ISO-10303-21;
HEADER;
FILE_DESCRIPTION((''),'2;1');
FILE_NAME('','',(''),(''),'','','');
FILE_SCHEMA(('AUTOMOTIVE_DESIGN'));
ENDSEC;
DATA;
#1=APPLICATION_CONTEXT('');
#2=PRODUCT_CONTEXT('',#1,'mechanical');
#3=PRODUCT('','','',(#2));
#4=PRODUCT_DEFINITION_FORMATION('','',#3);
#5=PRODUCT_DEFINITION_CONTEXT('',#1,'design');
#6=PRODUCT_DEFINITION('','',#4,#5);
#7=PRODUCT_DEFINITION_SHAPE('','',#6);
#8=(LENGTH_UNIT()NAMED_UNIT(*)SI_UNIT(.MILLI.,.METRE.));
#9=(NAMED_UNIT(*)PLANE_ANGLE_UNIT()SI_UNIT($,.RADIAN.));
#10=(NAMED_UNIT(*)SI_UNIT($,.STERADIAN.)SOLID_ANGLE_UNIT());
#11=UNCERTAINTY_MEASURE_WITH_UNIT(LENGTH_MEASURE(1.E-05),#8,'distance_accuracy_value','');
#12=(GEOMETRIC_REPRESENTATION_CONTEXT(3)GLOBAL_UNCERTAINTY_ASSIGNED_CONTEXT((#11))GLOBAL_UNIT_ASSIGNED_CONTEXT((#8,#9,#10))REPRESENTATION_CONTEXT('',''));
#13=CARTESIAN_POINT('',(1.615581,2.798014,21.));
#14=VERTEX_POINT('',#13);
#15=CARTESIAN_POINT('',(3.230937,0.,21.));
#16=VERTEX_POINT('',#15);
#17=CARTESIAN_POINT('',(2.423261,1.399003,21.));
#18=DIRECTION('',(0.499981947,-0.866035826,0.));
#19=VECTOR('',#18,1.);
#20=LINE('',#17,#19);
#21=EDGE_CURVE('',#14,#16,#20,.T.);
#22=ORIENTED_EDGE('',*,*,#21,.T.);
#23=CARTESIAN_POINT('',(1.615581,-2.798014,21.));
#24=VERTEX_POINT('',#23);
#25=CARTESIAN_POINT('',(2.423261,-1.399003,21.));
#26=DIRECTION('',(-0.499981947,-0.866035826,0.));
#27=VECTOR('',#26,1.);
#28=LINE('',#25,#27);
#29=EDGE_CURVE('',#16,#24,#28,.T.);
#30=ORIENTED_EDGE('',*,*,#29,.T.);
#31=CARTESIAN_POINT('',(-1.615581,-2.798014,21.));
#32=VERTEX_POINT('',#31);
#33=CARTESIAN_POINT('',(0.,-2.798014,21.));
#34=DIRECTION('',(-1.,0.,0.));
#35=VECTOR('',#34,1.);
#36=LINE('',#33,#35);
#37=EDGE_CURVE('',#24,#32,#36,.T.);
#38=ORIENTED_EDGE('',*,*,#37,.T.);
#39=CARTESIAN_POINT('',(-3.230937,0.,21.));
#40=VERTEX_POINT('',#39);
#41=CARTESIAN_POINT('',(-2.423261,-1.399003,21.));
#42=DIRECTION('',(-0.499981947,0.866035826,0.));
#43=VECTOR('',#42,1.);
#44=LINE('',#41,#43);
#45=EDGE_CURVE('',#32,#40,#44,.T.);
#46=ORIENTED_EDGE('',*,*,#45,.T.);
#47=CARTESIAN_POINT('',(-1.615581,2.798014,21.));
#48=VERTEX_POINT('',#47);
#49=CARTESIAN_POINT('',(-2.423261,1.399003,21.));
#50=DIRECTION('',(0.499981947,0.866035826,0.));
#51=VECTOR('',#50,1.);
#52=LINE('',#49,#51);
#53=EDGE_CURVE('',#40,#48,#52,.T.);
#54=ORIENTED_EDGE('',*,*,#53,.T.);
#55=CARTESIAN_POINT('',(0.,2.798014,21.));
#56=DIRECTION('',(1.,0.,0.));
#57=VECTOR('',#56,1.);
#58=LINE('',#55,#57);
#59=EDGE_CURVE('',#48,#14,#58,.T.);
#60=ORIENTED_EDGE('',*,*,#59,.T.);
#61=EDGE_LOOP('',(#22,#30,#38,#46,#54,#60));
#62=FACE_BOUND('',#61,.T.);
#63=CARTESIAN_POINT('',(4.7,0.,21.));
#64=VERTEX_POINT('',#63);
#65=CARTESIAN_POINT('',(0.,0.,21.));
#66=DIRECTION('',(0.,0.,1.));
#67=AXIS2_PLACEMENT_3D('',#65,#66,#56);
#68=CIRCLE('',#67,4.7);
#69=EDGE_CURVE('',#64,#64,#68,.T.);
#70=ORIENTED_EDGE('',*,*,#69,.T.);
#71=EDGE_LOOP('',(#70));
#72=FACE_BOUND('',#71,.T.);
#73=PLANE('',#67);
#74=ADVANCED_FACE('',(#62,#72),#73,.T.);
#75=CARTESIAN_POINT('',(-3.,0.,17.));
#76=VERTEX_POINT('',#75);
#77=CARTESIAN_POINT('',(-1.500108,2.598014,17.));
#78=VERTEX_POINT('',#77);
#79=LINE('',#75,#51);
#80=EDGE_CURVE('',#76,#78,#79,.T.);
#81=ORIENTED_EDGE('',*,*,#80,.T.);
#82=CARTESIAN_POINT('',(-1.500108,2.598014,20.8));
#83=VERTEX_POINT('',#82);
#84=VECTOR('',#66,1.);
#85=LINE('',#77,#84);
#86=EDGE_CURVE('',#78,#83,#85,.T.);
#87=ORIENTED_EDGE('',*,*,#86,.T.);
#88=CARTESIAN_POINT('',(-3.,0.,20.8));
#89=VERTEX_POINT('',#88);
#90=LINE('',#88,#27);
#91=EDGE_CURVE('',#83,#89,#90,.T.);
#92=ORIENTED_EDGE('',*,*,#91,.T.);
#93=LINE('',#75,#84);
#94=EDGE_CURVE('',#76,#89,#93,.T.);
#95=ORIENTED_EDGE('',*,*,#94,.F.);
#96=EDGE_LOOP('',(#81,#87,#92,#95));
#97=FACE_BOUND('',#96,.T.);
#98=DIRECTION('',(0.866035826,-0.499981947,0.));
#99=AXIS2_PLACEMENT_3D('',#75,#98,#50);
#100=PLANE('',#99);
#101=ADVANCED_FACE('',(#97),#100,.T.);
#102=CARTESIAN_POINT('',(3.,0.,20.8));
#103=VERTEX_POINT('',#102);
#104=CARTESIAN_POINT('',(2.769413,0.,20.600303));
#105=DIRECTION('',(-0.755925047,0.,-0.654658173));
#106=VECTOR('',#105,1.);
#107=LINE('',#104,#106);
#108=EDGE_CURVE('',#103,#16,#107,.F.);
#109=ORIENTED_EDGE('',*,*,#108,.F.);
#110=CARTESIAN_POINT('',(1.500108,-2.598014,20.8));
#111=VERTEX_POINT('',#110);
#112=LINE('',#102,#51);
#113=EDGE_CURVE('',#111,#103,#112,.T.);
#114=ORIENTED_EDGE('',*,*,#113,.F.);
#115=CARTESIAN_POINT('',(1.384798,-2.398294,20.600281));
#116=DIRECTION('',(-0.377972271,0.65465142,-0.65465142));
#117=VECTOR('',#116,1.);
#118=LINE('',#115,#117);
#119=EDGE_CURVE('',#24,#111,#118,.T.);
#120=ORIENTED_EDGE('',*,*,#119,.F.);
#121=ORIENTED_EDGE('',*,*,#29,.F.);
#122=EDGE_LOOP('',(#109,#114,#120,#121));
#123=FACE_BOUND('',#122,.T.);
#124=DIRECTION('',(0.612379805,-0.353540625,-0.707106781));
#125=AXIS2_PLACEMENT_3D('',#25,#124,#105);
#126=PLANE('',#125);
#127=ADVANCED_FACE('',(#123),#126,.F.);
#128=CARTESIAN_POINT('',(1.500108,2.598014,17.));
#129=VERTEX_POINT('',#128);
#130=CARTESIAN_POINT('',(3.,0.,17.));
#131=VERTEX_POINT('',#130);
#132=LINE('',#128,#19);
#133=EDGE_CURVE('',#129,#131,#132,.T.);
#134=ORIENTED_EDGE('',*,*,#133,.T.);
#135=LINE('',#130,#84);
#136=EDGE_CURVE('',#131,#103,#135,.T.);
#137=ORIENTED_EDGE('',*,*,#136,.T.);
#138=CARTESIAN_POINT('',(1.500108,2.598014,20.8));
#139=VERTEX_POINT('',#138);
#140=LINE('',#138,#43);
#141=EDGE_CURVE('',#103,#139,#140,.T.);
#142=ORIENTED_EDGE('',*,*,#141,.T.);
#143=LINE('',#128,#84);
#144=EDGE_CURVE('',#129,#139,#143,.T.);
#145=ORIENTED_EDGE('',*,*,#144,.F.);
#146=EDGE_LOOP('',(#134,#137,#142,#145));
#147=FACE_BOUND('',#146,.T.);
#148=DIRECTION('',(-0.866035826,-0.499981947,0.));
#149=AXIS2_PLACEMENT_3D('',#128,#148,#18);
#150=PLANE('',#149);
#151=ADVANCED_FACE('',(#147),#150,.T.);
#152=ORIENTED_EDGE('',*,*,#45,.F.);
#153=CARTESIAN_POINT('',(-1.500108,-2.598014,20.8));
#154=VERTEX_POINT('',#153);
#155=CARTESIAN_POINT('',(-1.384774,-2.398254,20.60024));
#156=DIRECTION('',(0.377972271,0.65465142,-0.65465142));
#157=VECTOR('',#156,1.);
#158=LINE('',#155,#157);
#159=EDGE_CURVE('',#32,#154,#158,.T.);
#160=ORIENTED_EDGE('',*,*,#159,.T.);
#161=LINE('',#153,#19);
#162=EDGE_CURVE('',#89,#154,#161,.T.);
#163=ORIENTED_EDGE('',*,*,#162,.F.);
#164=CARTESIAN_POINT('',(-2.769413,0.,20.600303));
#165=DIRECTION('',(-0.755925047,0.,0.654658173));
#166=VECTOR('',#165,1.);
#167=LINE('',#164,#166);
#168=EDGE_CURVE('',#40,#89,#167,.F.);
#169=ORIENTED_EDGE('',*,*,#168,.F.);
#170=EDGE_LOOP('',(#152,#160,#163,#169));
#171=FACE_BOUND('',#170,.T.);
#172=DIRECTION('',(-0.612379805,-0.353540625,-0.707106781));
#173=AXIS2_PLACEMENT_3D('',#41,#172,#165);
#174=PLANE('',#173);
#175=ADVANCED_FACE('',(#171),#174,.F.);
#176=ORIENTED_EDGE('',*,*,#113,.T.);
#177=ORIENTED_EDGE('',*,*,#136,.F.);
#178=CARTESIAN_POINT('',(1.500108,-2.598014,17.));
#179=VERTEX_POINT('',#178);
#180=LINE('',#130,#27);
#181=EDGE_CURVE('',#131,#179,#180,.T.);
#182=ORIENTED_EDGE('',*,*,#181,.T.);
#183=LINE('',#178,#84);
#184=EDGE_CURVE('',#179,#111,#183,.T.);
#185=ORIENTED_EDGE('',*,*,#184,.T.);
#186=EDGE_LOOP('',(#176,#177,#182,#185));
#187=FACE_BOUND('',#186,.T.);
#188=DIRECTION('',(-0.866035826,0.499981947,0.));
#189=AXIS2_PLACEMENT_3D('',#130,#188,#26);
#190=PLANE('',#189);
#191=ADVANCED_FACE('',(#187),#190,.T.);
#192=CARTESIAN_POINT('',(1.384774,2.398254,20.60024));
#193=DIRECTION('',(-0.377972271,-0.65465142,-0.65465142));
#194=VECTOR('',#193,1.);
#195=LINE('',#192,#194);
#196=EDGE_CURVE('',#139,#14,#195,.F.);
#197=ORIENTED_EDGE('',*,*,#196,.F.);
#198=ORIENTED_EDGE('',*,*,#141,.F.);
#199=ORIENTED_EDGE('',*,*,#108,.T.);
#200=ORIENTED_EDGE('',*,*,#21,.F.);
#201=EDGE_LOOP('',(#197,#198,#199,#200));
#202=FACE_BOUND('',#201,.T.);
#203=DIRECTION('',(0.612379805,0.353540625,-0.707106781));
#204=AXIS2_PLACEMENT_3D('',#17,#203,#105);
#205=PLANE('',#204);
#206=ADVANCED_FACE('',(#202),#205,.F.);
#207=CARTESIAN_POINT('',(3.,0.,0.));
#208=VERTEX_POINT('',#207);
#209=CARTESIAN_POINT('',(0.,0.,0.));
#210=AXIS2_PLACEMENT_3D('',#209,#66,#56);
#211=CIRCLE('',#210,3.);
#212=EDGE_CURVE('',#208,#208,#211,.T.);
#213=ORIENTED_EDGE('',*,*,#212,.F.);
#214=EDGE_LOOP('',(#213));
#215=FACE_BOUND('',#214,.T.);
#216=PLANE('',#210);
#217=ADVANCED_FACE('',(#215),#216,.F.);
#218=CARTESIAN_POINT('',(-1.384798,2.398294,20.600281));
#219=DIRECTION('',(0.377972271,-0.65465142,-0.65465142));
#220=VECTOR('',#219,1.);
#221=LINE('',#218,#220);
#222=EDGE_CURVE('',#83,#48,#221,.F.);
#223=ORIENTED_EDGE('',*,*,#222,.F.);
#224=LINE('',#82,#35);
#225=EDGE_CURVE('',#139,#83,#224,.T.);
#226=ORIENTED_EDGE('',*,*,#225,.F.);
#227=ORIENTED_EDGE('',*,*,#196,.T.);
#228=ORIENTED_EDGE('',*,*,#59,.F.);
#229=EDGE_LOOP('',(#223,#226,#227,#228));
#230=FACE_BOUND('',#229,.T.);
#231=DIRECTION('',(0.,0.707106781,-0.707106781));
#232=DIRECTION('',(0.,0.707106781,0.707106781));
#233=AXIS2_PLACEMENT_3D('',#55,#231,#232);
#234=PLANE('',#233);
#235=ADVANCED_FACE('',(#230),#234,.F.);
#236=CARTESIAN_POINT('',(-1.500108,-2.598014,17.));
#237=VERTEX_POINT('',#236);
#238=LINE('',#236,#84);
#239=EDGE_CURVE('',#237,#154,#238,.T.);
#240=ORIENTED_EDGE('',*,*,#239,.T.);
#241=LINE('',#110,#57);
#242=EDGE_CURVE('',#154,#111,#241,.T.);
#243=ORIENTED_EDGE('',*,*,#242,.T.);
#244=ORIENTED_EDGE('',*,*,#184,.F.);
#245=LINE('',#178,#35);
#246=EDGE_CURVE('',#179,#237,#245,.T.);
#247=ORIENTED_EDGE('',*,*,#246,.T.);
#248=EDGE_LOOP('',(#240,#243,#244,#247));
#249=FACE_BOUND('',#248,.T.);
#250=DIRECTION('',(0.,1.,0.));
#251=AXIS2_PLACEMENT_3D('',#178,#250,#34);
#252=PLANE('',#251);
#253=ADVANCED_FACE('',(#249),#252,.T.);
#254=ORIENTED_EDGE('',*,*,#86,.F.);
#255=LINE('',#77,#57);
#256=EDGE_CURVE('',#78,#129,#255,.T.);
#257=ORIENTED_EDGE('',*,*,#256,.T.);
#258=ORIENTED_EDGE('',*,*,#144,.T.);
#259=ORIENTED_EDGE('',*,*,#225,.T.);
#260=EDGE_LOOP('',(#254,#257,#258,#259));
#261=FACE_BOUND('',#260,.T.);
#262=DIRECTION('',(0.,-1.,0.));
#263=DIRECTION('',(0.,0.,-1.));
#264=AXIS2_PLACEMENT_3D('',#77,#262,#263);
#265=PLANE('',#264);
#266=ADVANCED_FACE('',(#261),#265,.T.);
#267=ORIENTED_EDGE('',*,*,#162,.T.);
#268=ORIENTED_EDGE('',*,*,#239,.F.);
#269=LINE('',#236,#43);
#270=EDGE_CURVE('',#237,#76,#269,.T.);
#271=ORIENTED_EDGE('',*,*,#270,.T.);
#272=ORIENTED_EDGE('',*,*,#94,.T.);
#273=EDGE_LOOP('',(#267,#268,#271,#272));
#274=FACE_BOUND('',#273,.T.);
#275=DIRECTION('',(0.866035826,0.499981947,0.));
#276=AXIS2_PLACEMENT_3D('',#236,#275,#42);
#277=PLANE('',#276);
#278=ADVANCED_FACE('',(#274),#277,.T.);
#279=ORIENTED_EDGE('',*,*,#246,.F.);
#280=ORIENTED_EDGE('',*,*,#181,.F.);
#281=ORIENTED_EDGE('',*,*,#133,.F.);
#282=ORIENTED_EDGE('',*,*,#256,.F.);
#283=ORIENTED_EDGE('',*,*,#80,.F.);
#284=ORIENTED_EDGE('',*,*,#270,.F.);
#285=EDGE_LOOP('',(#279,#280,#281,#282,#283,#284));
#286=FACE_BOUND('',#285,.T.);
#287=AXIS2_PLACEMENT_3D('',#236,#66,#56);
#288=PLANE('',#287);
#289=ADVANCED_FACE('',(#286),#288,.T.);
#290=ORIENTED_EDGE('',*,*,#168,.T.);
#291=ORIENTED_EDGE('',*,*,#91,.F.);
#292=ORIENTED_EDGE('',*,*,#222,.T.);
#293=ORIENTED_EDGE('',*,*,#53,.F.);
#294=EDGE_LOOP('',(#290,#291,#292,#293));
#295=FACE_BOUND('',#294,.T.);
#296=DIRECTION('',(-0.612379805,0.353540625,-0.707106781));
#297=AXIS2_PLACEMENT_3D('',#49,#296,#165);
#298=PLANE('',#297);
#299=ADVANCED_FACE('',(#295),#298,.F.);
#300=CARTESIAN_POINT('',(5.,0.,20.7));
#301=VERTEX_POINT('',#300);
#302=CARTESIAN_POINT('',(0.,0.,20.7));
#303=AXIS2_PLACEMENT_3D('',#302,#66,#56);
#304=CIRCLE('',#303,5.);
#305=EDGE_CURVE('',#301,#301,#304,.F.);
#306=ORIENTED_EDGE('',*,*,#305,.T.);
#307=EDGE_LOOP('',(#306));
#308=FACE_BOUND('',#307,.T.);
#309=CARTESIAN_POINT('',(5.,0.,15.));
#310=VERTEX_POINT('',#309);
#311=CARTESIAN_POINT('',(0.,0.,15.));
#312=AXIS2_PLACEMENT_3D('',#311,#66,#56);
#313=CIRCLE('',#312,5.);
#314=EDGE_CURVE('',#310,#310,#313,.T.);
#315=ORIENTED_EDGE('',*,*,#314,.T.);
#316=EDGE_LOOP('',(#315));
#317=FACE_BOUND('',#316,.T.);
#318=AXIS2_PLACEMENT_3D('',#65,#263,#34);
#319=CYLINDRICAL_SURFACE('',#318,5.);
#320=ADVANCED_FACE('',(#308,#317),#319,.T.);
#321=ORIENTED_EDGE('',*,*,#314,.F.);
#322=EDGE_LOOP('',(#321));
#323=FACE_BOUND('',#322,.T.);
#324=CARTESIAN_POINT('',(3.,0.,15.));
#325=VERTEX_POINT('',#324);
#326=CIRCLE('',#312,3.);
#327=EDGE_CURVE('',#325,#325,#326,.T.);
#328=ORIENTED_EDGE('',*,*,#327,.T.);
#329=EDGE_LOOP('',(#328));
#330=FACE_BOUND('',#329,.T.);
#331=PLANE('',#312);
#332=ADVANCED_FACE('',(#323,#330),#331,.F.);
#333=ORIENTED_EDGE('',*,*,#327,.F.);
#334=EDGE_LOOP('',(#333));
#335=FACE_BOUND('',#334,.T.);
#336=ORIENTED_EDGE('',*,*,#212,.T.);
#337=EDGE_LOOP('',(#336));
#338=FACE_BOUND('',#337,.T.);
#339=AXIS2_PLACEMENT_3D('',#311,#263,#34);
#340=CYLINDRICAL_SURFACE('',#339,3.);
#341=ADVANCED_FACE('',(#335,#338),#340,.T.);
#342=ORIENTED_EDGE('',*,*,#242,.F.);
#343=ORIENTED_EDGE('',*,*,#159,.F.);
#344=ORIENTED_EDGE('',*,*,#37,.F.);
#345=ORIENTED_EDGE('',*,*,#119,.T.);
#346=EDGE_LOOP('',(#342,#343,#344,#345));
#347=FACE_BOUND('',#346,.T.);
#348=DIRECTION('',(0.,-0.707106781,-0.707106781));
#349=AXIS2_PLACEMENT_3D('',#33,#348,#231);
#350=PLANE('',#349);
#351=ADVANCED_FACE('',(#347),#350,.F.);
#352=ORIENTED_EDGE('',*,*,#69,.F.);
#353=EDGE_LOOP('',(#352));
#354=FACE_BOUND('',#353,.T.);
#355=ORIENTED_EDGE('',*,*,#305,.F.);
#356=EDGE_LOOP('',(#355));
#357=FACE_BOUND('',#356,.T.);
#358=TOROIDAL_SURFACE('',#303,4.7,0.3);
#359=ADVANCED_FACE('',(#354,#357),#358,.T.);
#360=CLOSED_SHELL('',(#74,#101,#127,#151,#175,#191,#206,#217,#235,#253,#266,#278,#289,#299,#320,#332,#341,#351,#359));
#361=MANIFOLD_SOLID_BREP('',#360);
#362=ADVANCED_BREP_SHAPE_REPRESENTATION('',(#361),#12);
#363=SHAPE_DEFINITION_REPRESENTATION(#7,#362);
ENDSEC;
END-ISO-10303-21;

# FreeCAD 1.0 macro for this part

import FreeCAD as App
import Part
import Sketcher

V = App.Vector
Q = App.Units.Quantity


def edges_at(feature, points):
    """Names of the edges that pass closest to the given points."""
    edges = feature.Shape.Edges
    near = lambda p: min(range(len(edges)), key=lambda i: edges[i].distToShape(Part.Vertex(*p))[0])
    return sorted({f"Edge{near(p) + 1}" for p in points})


def add_polygon(sketch, points):
    """Adds a closed chain of lines whose ends are joined by coincident constraints."""
    first, n = sketch.GeometryCount, len(points)
    for a, b in zip(points, points[1:] + points[:1]):
        sketch.addGeometry(Part.LineSegment(App.Vector(*a, 0), App.Vector(*b, 0)), False)
    for i in range(n):
        sketch.addConstraint(Sketcher.Constraint("Coincident", first + i, 2, first + (i + 1) % n, 1))

doc = App.newDocument("Part")
params = doc.addObject("Spreadsheet::Sheet", "Params")
for row, (alias, value) in enumerate([
    ("sketch1_diameter", "6 mm"),
    ("pad1_length", "15 mm"),
    ("sketch2_diameter", "10 mm"),
    ("pad2_length", "6 mm"),
    ("pocket1_length", "4 mm"),
    ("chamfer_size", "0.2 mm"),
    ("fillet_radius", "0.3 mm"),
], start=1):
    params.set(f"A{row}", alias)
    params.set(f"B{row}", "=" + value)
    params.setAlias(f"B{row}", alias)

body = doc.addObject("PartDesign::Body", "Body")

# Sketch on XY plane
sketch1 = body.newObject("Sketcher::SketchObject", "Sketch")
sketch1.AttachmentSupport = (doc.getObject("XY_Plane"), [""])
sketch1.MapMode = "FlatFace"
sketch1.addGeometry(Part.Circle(V(0, 0, 0), V(0, 0, 1), 3), False)
sketch1.addConstraint(Sketcher.Constraint("Coincident", 0, 3, -1, 1))
sketch1.addConstraint(Sketcher.Constraint("Diameter", 0, Q("6 mm")))
sketch1.setExpression("Constraints[1]", "Params.sketch1_diameter")
pad1 = body.newObject("PartDesign::Pad", "Pad")
pad1.Profile = sketch1
pad1.setExpression("Length", "Params.pad1_length")

# Sketch on XY plane
sketch2 = body.newObject("Sketcher::SketchObject", "Sketch001")
sketch2.AttachmentSupport = (doc.getObject("XY_Plane"), [""])
sketch2.MapMode = "FlatFace"
sketch2.AttachmentOffset = App.Placement(V(0, 0, 15), App.Rotation())
sketch2.addGeometry(Part.Circle(V(0, 0, 0), V(0, 0, 1), 5), False)
sketch2.addConstraint(Sketcher.Constraint("Coincident", 0, 3, -1, 1))
sketch2.addConstraint(Sketcher.Constraint("Diameter", 0, Q("10 mm")))
sketch2.setExpression("Constraints[1]", "Params.sketch2_diameter")
pad2 = body.newObject("PartDesign::Pad", "Pad001")
pad2.Profile = sketch2
pad2.setExpression("Length", "Params.pad2_length")

# Sketch on XY plane
sketch3 = body.newObject("Sketcher::SketchObject", "Sketch002")
sketch3.AttachmentSupport = (doc.getObject("XY_Plane"), [""])
sketch3.MapMode = "FlatFace"
sketch3.AttachmentOffset = App.Placement(V(0, 0, 21), App.Rotation())
add_polygon(sketch3, [(-1.5, 2.6), (-3, 0), (-1.5, -2.6), (1.5, -2.6), (3, 0), (1.5, 2.6)])  # lines 0-5
sketch3.addConstraint(Sketcher.Constraint("Horizontal", 2))
sketch3.addConstraint(Sketcher.Constraint("Horizontal", 5))
sketch3.addConstraint(Sketcher.Constraint("Symmetric", 0, 2, 3, 2, -1, 1))
sketch3.addConstraint(Sketcher.Constraint("Symmetric", 1, 2, 4, 2, -1, 1))
sketch3.addConstraint(Sketcher.Constraint("PointOnObject", 0, 2, -1))
sketch3.addConstraint(Sketcher.Constraint("Parallel", 0, 3))
sketch3.addConstraint(Sketcher.Constraint("Vertical", 2, 2, 4, 2))
sketch3.addConstraint(Sketcher.Constraint("DistanceX", 0, 2, -1, 1, Q("3 mm")))
sketch3.addConstraint(Sketcher.Constraint("Distance", 0, Q("2.999892 mm")))
sketch3.addConstraint(Sketcher.Constraint("DistanceX", 2, 1, 2, 2, Q("3.000217 mm")))
pocket1 = body.newObject("PartDesign::Pocket", "Pocket")
pocket1.Profile = sketch3
pocket1.setExpression("Length", "Params.pocket1_length")
doc.recompute()

chamfer = body.newObject("PartDesign::Chamfer", "Chamfer")
chamfer.Base = (pocket1, edges_at(pocket1, [
    (-2.25, -1.299, 21),
    (0, -2.598, 21),
    (2.25, -1.299, 21),
    (2.25, 1.299, 21),
    (0, 2.598, 21),
    (-2.25, 1.299, 21),
]))
chamfer.setExpression("Size", "Params.chamfer_size")
doc.recompute()

fillet = body.newObject("PartDesign::Fillet", "Fillet")
fillet.Base = (chamfer, edges_at(chamfer, [(-5, 0, 21)]))
fillet.setExpression("Radius", "Params.fillet_radius")

doc.recompute()
